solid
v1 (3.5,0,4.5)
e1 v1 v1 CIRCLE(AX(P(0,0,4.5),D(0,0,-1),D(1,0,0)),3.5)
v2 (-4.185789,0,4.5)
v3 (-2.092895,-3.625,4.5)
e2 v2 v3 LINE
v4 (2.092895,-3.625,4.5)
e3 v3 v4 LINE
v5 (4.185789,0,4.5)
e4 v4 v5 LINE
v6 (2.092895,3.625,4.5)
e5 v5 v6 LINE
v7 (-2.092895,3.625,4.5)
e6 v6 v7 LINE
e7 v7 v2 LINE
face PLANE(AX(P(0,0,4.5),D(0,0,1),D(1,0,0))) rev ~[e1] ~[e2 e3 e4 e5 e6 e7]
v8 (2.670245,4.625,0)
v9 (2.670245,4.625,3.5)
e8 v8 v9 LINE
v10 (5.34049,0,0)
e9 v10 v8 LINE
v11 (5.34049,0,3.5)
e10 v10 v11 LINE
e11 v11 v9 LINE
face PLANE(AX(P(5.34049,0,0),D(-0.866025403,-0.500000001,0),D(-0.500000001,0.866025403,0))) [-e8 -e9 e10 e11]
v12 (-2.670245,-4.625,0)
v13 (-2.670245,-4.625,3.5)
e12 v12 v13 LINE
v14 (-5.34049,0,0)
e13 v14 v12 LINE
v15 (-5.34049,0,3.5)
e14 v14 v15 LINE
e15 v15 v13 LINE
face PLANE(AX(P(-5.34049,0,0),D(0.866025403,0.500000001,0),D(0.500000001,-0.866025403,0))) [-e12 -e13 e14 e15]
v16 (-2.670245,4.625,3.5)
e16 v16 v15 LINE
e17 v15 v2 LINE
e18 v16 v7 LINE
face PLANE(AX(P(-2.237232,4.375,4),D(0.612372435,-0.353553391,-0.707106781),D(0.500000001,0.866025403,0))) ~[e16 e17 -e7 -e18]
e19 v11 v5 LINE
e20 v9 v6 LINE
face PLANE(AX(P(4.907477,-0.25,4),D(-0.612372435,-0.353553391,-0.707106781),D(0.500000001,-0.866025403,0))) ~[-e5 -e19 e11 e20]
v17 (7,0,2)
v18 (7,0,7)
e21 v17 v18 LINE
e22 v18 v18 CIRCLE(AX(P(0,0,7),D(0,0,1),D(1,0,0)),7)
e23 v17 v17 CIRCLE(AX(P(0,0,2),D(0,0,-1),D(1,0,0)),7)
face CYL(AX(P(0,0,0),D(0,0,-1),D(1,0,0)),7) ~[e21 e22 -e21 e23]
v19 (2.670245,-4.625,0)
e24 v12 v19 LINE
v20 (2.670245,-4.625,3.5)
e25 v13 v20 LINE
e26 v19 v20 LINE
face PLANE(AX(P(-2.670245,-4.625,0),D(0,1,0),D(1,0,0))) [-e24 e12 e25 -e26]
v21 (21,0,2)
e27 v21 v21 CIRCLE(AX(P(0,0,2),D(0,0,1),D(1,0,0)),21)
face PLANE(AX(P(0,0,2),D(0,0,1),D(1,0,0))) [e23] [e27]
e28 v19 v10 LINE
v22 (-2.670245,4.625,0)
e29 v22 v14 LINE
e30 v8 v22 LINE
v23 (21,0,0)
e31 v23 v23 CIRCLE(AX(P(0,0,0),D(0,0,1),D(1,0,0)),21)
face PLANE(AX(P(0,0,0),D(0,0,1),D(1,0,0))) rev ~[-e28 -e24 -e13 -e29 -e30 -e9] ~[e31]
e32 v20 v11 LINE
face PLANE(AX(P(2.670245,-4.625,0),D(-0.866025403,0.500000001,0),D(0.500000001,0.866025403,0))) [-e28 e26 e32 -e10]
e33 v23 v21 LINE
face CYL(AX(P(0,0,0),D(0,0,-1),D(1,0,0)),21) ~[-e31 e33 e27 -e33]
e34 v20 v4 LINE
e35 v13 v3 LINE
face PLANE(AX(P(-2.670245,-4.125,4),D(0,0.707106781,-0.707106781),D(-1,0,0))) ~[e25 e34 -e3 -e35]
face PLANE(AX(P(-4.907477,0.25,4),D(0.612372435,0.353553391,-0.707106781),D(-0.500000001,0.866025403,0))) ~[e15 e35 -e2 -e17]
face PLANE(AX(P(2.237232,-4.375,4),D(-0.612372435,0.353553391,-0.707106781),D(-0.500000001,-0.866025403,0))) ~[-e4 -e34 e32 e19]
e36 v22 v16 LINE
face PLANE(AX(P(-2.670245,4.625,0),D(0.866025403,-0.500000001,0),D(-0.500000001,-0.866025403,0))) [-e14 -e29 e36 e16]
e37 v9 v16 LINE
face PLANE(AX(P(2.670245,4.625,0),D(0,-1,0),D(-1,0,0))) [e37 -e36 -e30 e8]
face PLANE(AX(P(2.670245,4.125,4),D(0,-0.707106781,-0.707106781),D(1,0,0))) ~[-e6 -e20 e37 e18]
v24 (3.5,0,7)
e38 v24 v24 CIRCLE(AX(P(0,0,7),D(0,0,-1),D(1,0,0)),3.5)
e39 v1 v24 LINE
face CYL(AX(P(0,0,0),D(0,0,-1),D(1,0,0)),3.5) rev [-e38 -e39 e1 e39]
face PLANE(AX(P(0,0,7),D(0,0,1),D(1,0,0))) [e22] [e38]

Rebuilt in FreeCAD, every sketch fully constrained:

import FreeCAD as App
import Part
import Sketcher
Q = App.Units.Quantity


def edges_at(feature, points):
    """Names of the edges that pass closest to the given points."""
    edges = feature.Shape.Edges
    near = lambda p: min(range(len(edges)), key=lambda i: edges[i].distToShape(Part.Vertex(*p))[0])
    return sorted({f"Edge{near(p) + 1}" for p in points})

doc = App.newDocument("Part")
params = doc.addObject("Spreadsheet::Sheet", "Params")
for row, (alias, value) in enumerate([
    ("sketch1_diameter", "42 mm"),
    ("pad1_length", "2 mm"),
    ("sketch2_diameter", "14 mm"),
    ("pad2_length", "7 mm"),
    ("sketch3_diameter", "7 mm"),
    ("pocket2_length", "4.5 mm"),
    ("chamfer_size", "1 mm"),
], start=1):
    params.set(f"A{row}", alias)
    params.set(f"B{row}", "=" + value)
    params.setAlias(f"B{row}", alias)

body = doc.addObject("PartDesign::Body", "Body")

# Sketch on XY plane
sketch1 = body.newObject("Sketcher::SketchObject", "Sketch")
sketch1.AttachmentSupport = (doc.getObject("XY_Plane"), [""])
sketch1.MapMode = "FlatFace"
sketch1.addGeometry(Part.Circle(App.Vector(0, 0, 0), App.Vector(0, 0, 1), 21), False)
sketch1.addConstraint(Sketcher.Constraint("Coincident", 0, 3, -1, 1))
sketch1.addConstraint(Sketcher.Constraint("Diameter", 0, Q("42 mm")))
sketch1.setExpression("Constraints[1]", "Params.sketch1_diameter")
pad1 = body.newObject("PartDesign::Pad", "Pad")
pad1.Profile = sketch1
pad1.setExpression("Length", "Params.pad1_length")

# Sketch on XY plane
sketch2 = body.newObject("Sketcher::SketchObject", "Sketch001")
sketch2.AttachmentSupport = (doc.getObject("XY_Plane"), [""])
sketch2.MapMode = "FlatFace"
sketch2.addGeometry(Part.Circle(App.Vector(0, 0, 0), App.Vector(0, 0, 1), 7), False)
sketch2.addConstraint(Sketcher.Constraint("Coincident", 0, 3, -1, 1))
sketch2.addConstraint(Sketcher.Constraint("Diameter", 0, Q("14 mm")))
sketch2.setExpression("Constraints[1]", "Params.sketch2_diameter")
pad2 = body.newObject("PartDesign::Pad", "Pad001")
pad2.Profile = sketch2
pad2.setExpression("Length", "Params.pad2_length")

# Sketch on XY plane
sketch3 = body.newObject("Sketcher::SketchObject", "Sketch002")
sketch3.AttachmentSupport = (doc.getObject("XY_Plane"), [""])
sketch3.MapMode = "FlatFace"
sketch3.addGeometry(Part.Circle(App.Vector(0, 0, 0), App.Vector(0, 0, 1), 3.5), False)
sketch3.addConstraint(Sketcher.Constraint("Coincident", 0, 3, -1, 1))
sketch3.addConstraint(Sketcher.Constraint("Diameter", 0, Q("7 mm")))
sketch3.setExpression("Constraints[1]", "Params.sketch3_diameter")
pocket1 = body.newObject("PartDesign::Pocket", "Pocket")
pocket1.Profile = sketch3
pocket1.Type = "ThroughAll"
pocket1.Reversed = True

# Sketch on XY plane
sketch4 = body.newObject("Sketcher::SketchObject", "Sketch003")
sketch4.AttachmentSupport = (doc.getObject("XY_Plane"), [""])
sketch4.MapMode = "FlatFace"
sketch4.addGeometry(Part.LineSegment(App.Vector(2.670245, -4.625, 0), App.Vector(5.34049, 0, 0)), False)
sketch4.addGeometry(Part.LineSegment(App.Vector(5.34049, 0, 0), App.Vector(2.670245, 4.625, 0)), False)
sketch4.addGeometry(Part.LineSegment(App.Vector(2.670245, 4.625, 0), App.Vector(-2.670245, 4.625, 0)), False)
sketch4.addGeometry(Part.LineSegment(App.Vector(-2.670245, 4.625, 0), App.Vector(-5.34049, 0, 0)), False)
sketch4.addGeometry(Part.LineSegment(App.Vector(-5.34049, 0, 0), App.Vector(-2.670245, -4.625, 0)), False)
sketch4.addGeometry(Part.LineSegment(App.Vector(-2.670245, -4.625, 0), App.Vector(2.670245, -4.625, 0)), False)
sketch4.addConstraint(Sketcher.Constraint("Coincident", 0, 2, 1, 1))
sketch4.addConstraint(Sketcher.Constraint("Coincident", 1, 2, 2, 1))
sketch4.addConstraint(Sketcher.Constraint("Coincident", 2, 2, 3, 1))
sketch4.addConstraint(Sketcher.Constraint("Coincident", 3, 2, 4, 1))
sketch4.addConstraint(Sketcher.Constraint("Coincident", 4, 2, 5, 1))
sketch4.addConstraint(Sketcher.Constraint("Coincident", 5, 2, 0, 1))
sketch4.addConstraint(Sketcher.Constraint("Horizontal", 2))
sketch4.addConstraint(Sketcher.Constraint("Horizontal", 5))
sketch4.addConstraint(Sketcher.Constraint("Symmetric", 0, 2, 3, 2, -1, 1))
sketch4.addConstraint(Sketcher.Constraint("Symmetric", 1, 2, 4, 2, -1, 1))
sketch4.addConstraint(Sketcher.Constraint("PointOnObject", 0, 2, -1))
sketch4.addConstraint(Sketcher.Constraint("Parallel", 0, 3))
sketch4.addConstraint(Sketcher.Constraint("Vertical", 2, 2, 4, 2))
sketch4.addConstraint(Sketcher.Constraint("Angle", 0, Q("60 deg")))
sketch4.addConstraint(Sketcher.Constraint("DistanceY", 4, 2, 2, 2, Q("9.25 mm")))
sketch4.addConstraint(Sketcher.Constraint("DistanceX", 2, 2, 2, 1, Q("5.34049 mm")))
pocket2 = body.newObject("PartDesign::Pocket", "Pocket001")
pocket2.Profile = sketch4
pocket2.setExpression("Length", "Params.pocket2_length")
pocket2.Reversed = True
doc.recompute()

chamfer = body.newObject("PartDesign::Chamfer", "Chamfer")
chamfer.Base = (pocket2, edges_at(pocket2, [
    (-4.005, -2.312, 4.5),
    (0, -4.625, 4.5),
    (4.005, -2.312, 4.5),
    (4.005, 2.312, 4.5),
    (0, 4.625, 4.5),
    (-4.005, 2.312, 4.5),
]))
chamfer.setExpression("Size", "Params.chamfer_size")

doc.recompute()
